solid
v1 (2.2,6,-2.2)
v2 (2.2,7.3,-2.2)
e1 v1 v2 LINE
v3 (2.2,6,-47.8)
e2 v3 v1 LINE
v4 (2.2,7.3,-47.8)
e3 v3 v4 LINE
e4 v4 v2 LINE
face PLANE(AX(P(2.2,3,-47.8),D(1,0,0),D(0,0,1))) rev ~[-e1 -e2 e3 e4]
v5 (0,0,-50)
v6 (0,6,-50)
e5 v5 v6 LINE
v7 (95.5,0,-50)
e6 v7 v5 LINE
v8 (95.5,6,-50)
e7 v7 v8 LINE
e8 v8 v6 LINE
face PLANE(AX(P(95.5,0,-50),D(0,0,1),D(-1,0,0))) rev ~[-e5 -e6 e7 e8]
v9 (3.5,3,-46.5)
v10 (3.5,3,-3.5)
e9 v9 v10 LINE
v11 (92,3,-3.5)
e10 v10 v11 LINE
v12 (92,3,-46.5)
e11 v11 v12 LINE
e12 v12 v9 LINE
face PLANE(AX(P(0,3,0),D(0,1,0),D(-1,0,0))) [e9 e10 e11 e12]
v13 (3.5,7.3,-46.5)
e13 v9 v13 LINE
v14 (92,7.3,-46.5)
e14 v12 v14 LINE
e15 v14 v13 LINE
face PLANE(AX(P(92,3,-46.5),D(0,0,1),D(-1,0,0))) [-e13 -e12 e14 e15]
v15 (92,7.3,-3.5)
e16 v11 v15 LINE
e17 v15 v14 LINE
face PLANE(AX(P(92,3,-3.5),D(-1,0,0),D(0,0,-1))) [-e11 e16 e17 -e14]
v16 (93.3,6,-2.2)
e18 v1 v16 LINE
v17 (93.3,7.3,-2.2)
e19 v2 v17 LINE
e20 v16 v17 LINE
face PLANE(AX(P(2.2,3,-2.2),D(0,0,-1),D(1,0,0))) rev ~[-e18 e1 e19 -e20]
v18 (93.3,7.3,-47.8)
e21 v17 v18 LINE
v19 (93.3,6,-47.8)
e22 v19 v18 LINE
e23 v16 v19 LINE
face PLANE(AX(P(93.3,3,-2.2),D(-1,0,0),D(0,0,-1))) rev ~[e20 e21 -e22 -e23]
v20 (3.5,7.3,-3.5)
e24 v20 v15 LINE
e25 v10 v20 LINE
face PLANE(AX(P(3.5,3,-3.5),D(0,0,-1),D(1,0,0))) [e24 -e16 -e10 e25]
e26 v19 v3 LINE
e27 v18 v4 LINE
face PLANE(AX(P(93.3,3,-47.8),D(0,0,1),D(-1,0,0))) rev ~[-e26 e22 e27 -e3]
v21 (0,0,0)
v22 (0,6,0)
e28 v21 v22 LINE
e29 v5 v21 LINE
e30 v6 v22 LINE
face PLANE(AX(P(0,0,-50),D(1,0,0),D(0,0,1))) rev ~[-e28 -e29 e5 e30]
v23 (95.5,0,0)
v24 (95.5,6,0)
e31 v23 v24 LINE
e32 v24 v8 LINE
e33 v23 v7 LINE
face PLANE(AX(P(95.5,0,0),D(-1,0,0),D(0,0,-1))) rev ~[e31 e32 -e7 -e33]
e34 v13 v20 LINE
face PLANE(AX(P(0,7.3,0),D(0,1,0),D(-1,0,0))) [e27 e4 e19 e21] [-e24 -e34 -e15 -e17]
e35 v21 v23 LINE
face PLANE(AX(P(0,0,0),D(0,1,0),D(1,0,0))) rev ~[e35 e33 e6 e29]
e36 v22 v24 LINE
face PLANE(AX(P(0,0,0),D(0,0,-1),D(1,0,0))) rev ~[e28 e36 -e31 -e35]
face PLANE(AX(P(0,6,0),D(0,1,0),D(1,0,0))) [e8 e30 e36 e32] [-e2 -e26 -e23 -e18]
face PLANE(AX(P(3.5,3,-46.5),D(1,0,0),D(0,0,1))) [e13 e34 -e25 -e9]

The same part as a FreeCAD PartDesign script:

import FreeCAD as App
import Part
import Sketcher

V = App.Vector
Q = App.Units.Quantity


def add_polygon(sketch, points):
    """Adds a closed chain of lines whose ends are joined by coincident constraints."""
    first, n = sketch.GeometryCount, len(points)
    for a, b in zip(points, points[1:] + points[:1]):
        sketch.addGeometry(Part.LineSegment(App.Vector(*a, 0), App.Vector(*b, 0)), False)
    for i in range(n):
        sketch.addConstraint(Sketcher.Constraint("Coincident", first + i, 2, first + (i + 1) % n, 1))

doc = App.newDocument("Part")
params = doc.addObject("Spreadsheet::Sheet", "Params")
for row, (alias, value) in enumerate([
    ("sketch1_height", "50 mm"),
    ("sketch1_width", "95.5 mm"),
    ("pad1_length", "6 mm"),
    ("sketch2_width", "91.1 mm"),
    ("sketch2_height", "45.6 mm"),
    ("pocket1_length", "3 mm"),
    ("sketch3_height", "43 mm"),
    ("sketch3_width", "88.5 mm"),
    ("sketch3_width2", "91.1 mm"),
    ("sketch3_height2", "45.6 mm"),
    ("pad2_length", "4.3 mm"),
], start=1):
    params.set(f"A{row}", alias)
    params.set(f"B{row}", "=" + value)
    params.setAlias(f"B{row}", alias)

body = doc.addObject("PartDesign::Body", "Body")

sketch1 = body.newObject("Sketcher::SketchObject", "Sketch")
sketch1.AttachmentSupport = (doc.getObject("XZ_Plane"), [""])
sketch1.MapMode = "FlatFace"
add_polygon(sketch1, [(0, -50), (0, 0), (96, 0), (96, -50)])
sketch1.addConstraint([
    Sketcher.Constraint("Vertical", 0),
    Sketcher.Constraint("Horizontal", 1),
    Sketcher.Constraint("Vertical", 2),
    Sketcher.Constraint("Horizontal", 3),
    Sketcher.Constraint("Coincident", 0, 2, -1, 1),
    Sketcher.Constraint("DistanceY", 0, 1, 0, 2, Q("50 mm")),
    Sketcher.Constraint("DistanceX", 1, 1, 1, 2, Q("95.5 mm")),
])
sketch1.setExpression("Constraints[9]", "Params.sketch1_height")
sketch1.setExpression("Constraints[10]", "Params.sketch1_width")
pad1 = body.newObject("PartDesign::Pad", "Pad")
pad1.Profile = sketch1
pad1.setExpression("Length", "Params.pad1_length")
pad1.Reversed = True

sketch2 = body.newObject("Sketcher::SketchObject", "Sketch001")
sketch2.AttachmentSupport = (doc.getObject("XZ_Plane"), [""])
sketch2.MapMode = "FlatFace"
sketch2.AttachmentOffset = App.Placement(V(0, 0, -6), App.Rotation())
add_polygon(sketch2, [(2, -48), (2, -2), (93, -2), (93, -48)])
sketch2.addConstraint([
    Sketcher.Constraint("Vertical", 0),
    Sketcher.Constraint("Horizontal", 1),
    Sketcher.Constraint("Vertical", 2),
    Sketcher.Constraint("Horizontal", 3),
    Sketcher.Constraint("DistanceX", 1, 1, 1, 2, Q("91.1 mm")),
    Sketcher.Constraint("DistanceY", 0, 1, 0, 2, Q("45.6 mm")),
    Sketcher.Constraint("DistanceX", -1, 1, 0, 2, Q("2.2 mm")),
    Sketcher.Constraint("DistanceY", 0, 2, -1, 1, Q("2.2 mm")),
])
sketch2.setExpression("Constraints[8]", "Params.sketch2_width")
sketch2.setExpression("Constraints[9]", "Params.sketch2_height")
pocket1 = body.newObject("PartDesign::Pocket", "Pocket")
pocket1.Profile = sketch2
pocket1.setExpression("Length", "Params.pocket1_length")
pocket1.Reversed = True

sketch3 = body.newObject("Sketcher::SketchObject", "Sketch002")
sketch3.AttachmentSupport = (doc.getObject("XZ_Plane"), [""])
sketch3.MapMode = "FlatFace"
sketch3.AttachmentOffset = App.Placement(V(0, 0, -3), App.Rotation())
add_polygon(sketch3, [(93, -48), (2, -48), (2, -2), (93, -2)])
add_polygon(sketch3, [(92, -4), (4, -4), (4, -46), (92, -46)])
sketch3.addConstraint([
    Sketcher.Constraint("Horizontal", 0),
    Sketcher.Constraint("Vertical", 1),
    Sketcher.Constraint("Horizontal", 2),
    Sketcher.Constraint("Vertical", 3),
    Sketcher.Constraint("Horizontal", 4),
    Sketcher.Constraint("Vertical", 5),
    Sketcher.Constraint("Horizontal", 6),
    Sketcher.Constraint("Vertical", 7),
    Sketcher.Constraint("DistanceY", 5, 2, 5, 1, Q("43 mm")),
    Sketcher.Constraint("DistanceX", 4, 2, 4, 1, Q("88.5 mm")),
    Sketcher.Constraint("DistanceX", 0, 2, 0, 1, Q("91.1 mm")),
    Sketcher.Constraint("DistanceY", 1, 1, 1, 2, Q("45.6 mm")),
    Sketcher.Constraint("DistanceX", -1, 1, 6, 2, Q("92 mm")),
    Sketcher.Constraint("DistanceX", -1, 1, 0, 2, Q("2.2 mm")),
    Sketcher.Constraint("DistanceY", 0, 2, -1, 1, Q("47.8 mm")),
    Sketcher.Constraint("DistanceY", 4, 2, -1, 1, Q("3.5 mm")),
])
sketch3.setExpression("Constraints[16]", "Params.sketch3_height")
sketch3.setExpression("Constraints[17]", "Params.sketch3_width")
sketch3.setExpression("Constraints[18]", "Params.sketch3_width2")
sketch3.setExpression("Constraints[19]", "Params.sketch3_height2")
pad2 = body.newObject("PartDesign::Pad", "Pad001")
pad2.Profile = sketch3
pad2.setExpression("Length", "Params.pad2_length")
pad2.Reversed = True

doc.recompute()
